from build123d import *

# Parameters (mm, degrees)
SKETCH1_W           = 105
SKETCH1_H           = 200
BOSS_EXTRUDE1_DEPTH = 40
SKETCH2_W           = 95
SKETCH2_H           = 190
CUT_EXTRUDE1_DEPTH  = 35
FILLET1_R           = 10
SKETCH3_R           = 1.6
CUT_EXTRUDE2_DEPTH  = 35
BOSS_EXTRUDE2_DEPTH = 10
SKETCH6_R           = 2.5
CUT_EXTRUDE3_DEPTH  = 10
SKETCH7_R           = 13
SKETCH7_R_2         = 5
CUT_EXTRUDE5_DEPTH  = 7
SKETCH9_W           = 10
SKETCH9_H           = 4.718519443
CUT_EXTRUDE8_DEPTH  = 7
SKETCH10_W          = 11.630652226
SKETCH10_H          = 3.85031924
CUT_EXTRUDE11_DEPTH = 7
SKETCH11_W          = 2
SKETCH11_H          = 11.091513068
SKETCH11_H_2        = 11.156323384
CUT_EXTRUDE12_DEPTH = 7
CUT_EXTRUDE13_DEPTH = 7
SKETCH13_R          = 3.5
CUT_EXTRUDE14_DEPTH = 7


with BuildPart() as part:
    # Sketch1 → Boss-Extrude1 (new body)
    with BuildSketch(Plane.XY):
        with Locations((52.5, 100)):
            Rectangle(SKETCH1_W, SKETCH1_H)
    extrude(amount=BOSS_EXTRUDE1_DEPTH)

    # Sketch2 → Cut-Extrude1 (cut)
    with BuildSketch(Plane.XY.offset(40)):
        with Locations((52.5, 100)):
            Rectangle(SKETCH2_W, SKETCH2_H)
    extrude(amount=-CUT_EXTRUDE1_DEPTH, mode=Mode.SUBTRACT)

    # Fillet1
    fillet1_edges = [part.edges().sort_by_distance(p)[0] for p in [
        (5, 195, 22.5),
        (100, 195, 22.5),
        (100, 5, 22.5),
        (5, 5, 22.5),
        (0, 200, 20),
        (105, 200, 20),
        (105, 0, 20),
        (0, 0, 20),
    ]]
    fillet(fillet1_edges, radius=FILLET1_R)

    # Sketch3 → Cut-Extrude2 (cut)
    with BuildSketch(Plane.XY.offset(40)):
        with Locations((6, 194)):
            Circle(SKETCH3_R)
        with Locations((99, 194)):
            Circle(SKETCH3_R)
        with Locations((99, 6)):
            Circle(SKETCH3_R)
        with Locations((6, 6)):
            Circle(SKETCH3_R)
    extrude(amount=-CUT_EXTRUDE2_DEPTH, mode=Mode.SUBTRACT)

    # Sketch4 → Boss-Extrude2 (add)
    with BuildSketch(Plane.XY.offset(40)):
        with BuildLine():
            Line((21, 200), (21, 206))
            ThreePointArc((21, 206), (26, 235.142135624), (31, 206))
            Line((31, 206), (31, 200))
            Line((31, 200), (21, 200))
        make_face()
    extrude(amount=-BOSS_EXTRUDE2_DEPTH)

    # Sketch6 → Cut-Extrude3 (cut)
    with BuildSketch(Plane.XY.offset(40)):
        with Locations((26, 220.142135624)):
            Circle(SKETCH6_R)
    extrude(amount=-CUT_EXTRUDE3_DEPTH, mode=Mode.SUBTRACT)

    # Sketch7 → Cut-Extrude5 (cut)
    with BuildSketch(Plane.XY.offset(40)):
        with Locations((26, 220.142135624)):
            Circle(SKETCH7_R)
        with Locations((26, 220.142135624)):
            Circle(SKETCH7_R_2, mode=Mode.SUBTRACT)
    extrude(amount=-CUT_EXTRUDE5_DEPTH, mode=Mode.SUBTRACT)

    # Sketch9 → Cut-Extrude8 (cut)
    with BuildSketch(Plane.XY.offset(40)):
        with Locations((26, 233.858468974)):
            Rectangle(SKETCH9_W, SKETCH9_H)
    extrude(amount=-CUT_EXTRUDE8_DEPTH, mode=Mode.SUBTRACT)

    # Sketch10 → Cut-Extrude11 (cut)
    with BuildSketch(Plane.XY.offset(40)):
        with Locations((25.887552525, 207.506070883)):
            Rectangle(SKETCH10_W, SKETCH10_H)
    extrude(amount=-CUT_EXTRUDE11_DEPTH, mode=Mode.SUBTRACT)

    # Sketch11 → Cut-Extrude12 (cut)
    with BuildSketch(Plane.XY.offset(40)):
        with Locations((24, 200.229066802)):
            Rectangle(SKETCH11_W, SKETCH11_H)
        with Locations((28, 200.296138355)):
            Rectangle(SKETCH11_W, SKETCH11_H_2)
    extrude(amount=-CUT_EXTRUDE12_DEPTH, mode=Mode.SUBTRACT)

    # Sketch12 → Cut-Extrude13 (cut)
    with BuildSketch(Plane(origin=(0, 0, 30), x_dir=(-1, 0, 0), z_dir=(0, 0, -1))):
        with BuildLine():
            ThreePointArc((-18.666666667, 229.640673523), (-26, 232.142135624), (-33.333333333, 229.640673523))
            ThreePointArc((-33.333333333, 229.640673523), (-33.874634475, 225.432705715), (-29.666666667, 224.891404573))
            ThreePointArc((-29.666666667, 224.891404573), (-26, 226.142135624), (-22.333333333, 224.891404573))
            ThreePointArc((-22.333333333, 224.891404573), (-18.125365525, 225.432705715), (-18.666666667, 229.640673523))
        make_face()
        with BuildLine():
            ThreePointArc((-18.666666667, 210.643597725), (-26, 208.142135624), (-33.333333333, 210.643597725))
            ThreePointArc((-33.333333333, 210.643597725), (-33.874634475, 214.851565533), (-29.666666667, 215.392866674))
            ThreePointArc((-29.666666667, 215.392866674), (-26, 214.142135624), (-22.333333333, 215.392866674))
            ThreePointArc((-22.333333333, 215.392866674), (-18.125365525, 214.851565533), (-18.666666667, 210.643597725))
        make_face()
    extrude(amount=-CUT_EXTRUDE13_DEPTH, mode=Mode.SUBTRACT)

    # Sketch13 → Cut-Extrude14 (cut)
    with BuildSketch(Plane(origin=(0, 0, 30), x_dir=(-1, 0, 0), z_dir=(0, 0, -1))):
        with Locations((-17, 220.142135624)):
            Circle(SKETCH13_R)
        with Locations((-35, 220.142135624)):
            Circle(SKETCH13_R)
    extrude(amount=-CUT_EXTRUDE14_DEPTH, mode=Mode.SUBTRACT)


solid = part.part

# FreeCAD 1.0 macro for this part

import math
import FreeCAD as App
import Part
import Sketcher


def edges_at(feature, points):
    """Names of the edges that pass closest to the given points."""
    edges = feature.Shape.Edges
    near = lambda p: min(range(len(edges)), key=lambda i: edges[i].distToShape(Part.Vertex(*p))[0])
    return sorted({f"Edge{near(p) + 1}" for p in points})

doc = App.newDocument("Part")
params = doc.addObject("Spreadsheet::Sheet", "Params")
for row, (alias, value) in enumerate([
    ("sketch1_width", "105 mm"),
    ("sketch1_height", "200 mm"),
    ("pad1_length", "40 mm"),
    ("sketch2_width", "95 mm"),
    ("sketch2_height", "190 mm"),
    ("pocket1_length", "35 mm"),
    ("fillet_radius", "10 mm"),
    ("sketch3_diameter", "3.2 mm"),
    ("pocket2_length", "35 mm"),
    ("sketch4_radius", "15 mm"),
    ("sketch4_width", "10 mm"),
    ("sketch4_height", "6 mm"),
    ("pad2_length", "10 mm"),
    ("sketch5_diameter", "5 mm"),
    ("pocket3_length", "10 mm"),
    ("sketch6_diameter", "26 mm"),
    ("sketch6_diameter2", "10 mm"),
    ("pocket4_length", "7 mm"),
    ("sketch7_width", "10 mm"),
    ("pocket5_length", "7 mm"),
    ("pocket6_length", "7 mm"),
    ("sketch9_width", "2 mm"),
    ("pocket7_length", "7 mm"),
    ("sketch10_radius", "12 mm"),
    ("sketch10_radius2", "3 mm"),
    ("pocket8_length", "7 mm"),
    ("sketch11_diameter", "7 mm"),
    ("pocket9_length", "7 mm"),
], start=1):
    params.set(f"A{row}", alias)
    params.set(f"B{row}", "=" + value)
    params.setAlias(f"B{row}", alias)

body = doc.addObject("PartDesign::Body", "Body")

sketch1 = body.newObject("Sketcher::SketchObject", "Sketch")
sketch1.AttachmentSupport = (doc.getObject("XY_Plane"), [""])
sketch1.MapMode = "FlatFace"
sketch1.addGeometry(Part.LineSegment(App.Vector(0, 200, 0), App.Vector(0, 0, 0)), False)
sketch1.addGeometry(Part.LineSegment(App.Vector(0, 0, 0), App.Vector(105, 0, 0)), False)
sketch1.addGeometry(Part.LineSegment(App.Vector(105, 0, 0), App.Vector(105, 200, 0)), False)
sketch1.addGeometry(Part.LineSegment(App.Vector(105, 200, 0), App.Vector(0, 200, 0)), False)
sketch1.addConstraint(Sketcher.Constraint("Coincident", 0, 2, 1, 1))
sketch1.addConstraint(Sketcher.Constraint("Coincident", 1, 2, 2, 1))
sketch1.addConstraint(Sketcher.Constraint("Coincident", 2, 2, 3, 1))
sketch1.addConstraint(Sketcher.Constraint("Coincident", 3, 2, 0, 1))
sketch1.addConstraint(Sketcher.Constraint("Vertical", 0))
sketch1.addConstraint(Sketcher.Constraint("Horizontal", 1))
sketch1.addConstraint(Sketcher.Constraint("Vertical", 2))
sketch1.addConstraint(Sketcher.Constraint("Horizontal", 3))
sketch1.addConstraint(Sketcher.Constraint("Coincident", 0, 2, -1, 1))
sketch1.addConstraint(Sketcher.Constraint("DistanceX", 1, 1, 1, 2, 105.0))
sketch1.addConstraint(Sketcher.Constraint("DistanceY", 0, 2, 0, 1, 200.0))
sketch1.setExpression("Constraints[9]", "Params.sketch1_width")
sketch1.setExpression("Constraints[10]", "Params.sketch1_height")
pad1 = body.newObject("PartDesign::Pad", "Pad")
pad1.Profile = sketch1
pad1.setExpression("Length", "Params.pad1_length")

sketch2 = body.newObject("Sketcher::SketchObject", "Sketch001")
sketch2.AttachmentSupport = (doc.getObject("XY_Plane"), [""])
sketch2.MapMode = "FlatFace"
sketch2.AttachmentOffset = App.Placement(App.Vector(0, 0, 40), App.Rotation())
sketch2.addGeometry(Part.LineSegment(App.Vector(5, 195, 0), App.Vector(5, 5, 0)), False)
sketch2.addGeometry(Part.LineSegment(App.Vector(5, 5, 0), App.Vector(100, 5, 0)), False)
sketch2.addGeometry(Part.LineSegment(App.Vector(100, 5, 0), App.Vector(100, 195, 0)), False)
sketch2.addGeometry(Part.LineSegment(App.Vector(100, 195, 0), App.Vector(5, 195, 0)), False)
sketch2.addConstraint(Sketcher.Constraint("Coincident", 0, 2, 1, 1))
sketch2.addConstraint(Sketcher.Constraint("Coincident", 1, 2, 2, 1))
sketch2.addConstraint(Sketcher.Constraint("Coincident", 2, 2, 3, 1))
sketch2.addConstraint(Sketcher.Constraint("Coincident", 3, 2, 0, 1))
sketch2.addConstraint(Sketcher.Constraint("Vertical", 0))
sketch2.addConstraint(Sketcher.Constraint("Horizontal", 1))
sketch2.addConstraint(Sketcher.Constraint("Vertical", 2))
sketch2.addConstraint(Sketcher.Constraint("Horizontal", 3))
sketch2.addConstraint(Sketcher.Constraint("DistanceX", 1, 1, 1, 2, 95.0))
sketch2.addConstraint(Sketcher.Constraint("DistanceY", 0, 2, 0, 1, 190.0))
sketch2.addConstraint(Sketcher.Constraint("DistanceX", -1, 1, 0, 2, 5.0))
sketch2.addConstraint(Sketcher.Constraint("DistanceY", -1, 1, 0, 2, 5.0))
sketch2.setExpression("Constraints[8]", "Params.sketch2_width")
sketch2.setExpression("Constraints[9]", "Params.sketch2_height")
pocket1 = body.newObject("PartDesign::Pocket", "Pocket")
pocket1.Profile = sketch2
pocket1.setExpression("Length", "Params.pocket1_length")
doc.recompute()

fillet = body.newObject("PartDesign::Fillet", "Fillet")
fillet.Base = (pocket1, edges_at(pocket1, [
    (5, 195, 22.5),
    (100, 195, 22.5),
    (100, 5, 22.5),
    (5, 5, 22.5),
    (0, 200, 20),
    (105, 200, 20),
    (105, 0, 20),
    (0, 0, 20),
]))
fillet.setExpression("Radius", "Params.fillet_radius")

sketch3 = body.newObject("Sketcher::SketchObject", "Sketch002")
sketch3.AttachmentSupport = (doc.getObject("XY_Plane"), [""])
sketch3.MapMode = "FlatFace"
sketch3.AttachmentOffset = App.Placement(App.Vector(0, 0, 40), App.Rotation())
sketch3.addGeometry(Part.Circle(App.Vector(6, 194, 0), App.Vector(0, 0, 1), 1.6), False)
sketch3.addGeometry(Part.Circle(App.Vector(99, 194, 0), App.Vector(0, 0, 1), 1.6), False)
sketch3.addGeometry(Part.Circle(App.Vector(99, 6, 0), App.Vector(0, 0, 1), 1.6), False)
sketch3.addGeometry(Part.Circle(App.Vector(6, 6, 0), App.Vector(0, 0, 1), 1.6), False)
sketch3.addConstraint(Sketcher.Constraint("Equal", 0, 1))
sketch3.addConstraint(Sketcher.Constraint("Equal", 1, 2))
sketch3.addConstraint(Sketcher.Constraint("Equal", 2, 3))
sketch3.addConstraint(Sketcher.Constraint("Horizontal", 0, 3, 1, 3))
sketch3.addConstraint(Sketcher.Constraint("Horizontal", 2, 3, 3, 3))
sketch3.addConstraint(Sketcher.Constraint("Vertical", 1, 3, 2, 3))
sketch3.addConstraint(Sketcher.Constraint("Vertical", 0, 3, 3, 3))
sketch3.addConstraint(Sketcher.Constraint("Diameter", 0, 3.2))
sketch3.addConstraint(Sketcher.Constraint("DistanceX", -1, 1, 0, 3, 6.0))
sketch3.addConstraint(Sketcher.Constraint("DistanceY", -1, 1, 0, 3, 194.0))
sketch3.addConstraint(Sketcher.Constraint("DistanceX", -1, 1, 1, 3, 99.0))
sketch3.addConstraint(Sketcher.Constraint("DistanceY", -1, 1, 2, 3, 6.0))
sketch3.setExpression("Constraints[7]", "Params.sketch3_diameter")
pocket2 = body.newObject("PartDesign::Pocket", "Pocket001")
pocket2.Profile = sketch3
pocket2.setExpression("Length", "Params.pocket2_length")

sketch4 = body.newObject("Sketcher::SketchObject", "Sketch003")
sketch4.AttachmentSupport = (doc.getObject("XY_Plane"), [""])
sketch4.MapMode = "FlatFace"
sketch4.AttachmentOffset = App.Placement(App.Vector(0, 0, 40), App.Rotation())
sketch4.addGeometry(Part.LineSegment(App.Vector(21, 206, 0), App.Vector(21, 200, 0)), False)
sketch4.addGeometry(Part.LineSegment(App.Vector(21, 200, 0), App.Vector(31, 200, 0)), False)
sketch4.addGeometry(Part.LineSegment(App.Vector(31, 200, 0), App.Vector(31, 206, 0)), False)
sketch4.addGeometry(Part.ArcOfCircle(Part.Circle(App.Vector(26, 220, 0), App.Vector(0, 0, 1), 15), math.radians(-71), math.radians(251)), False)
sketch4.addConstraint(Sketcher.Constraint("Coincident", 0, 2, 1, 1))
sketch4.addConstraint(Sketcher.Constraint("Coincident", 1, 2, 2, 1))
sketch4.addConstraint(Sketcher.Constraint("Coincident", 2, 2, 3, 1))
sketch4.addConstraint(Sketcher.Constraint("Coincident", 3, 2, 0, 1))
sketch4.addConstraint(Sketcher.Constraint("Vertical", 0))
sketch4.addConstraint(Sketcher.Constraint("Horizontal", 1))
sketch4.addConstraint(Sketcher.Constraint("Vertical", 2))
sketch4.addConstraint(Sketcher.Constraint("Horizontal", 2, 2, 3, 2))
sketch4.addConstraint(Sketcher.Constraint("Radius", 3, 15.0))
sketch4.addConstraint(Sketcher.Constraint("DistanceX", 1, 1, 1, 2, 10.0))
sketch4.addConstraint(Sketcher.Constraint("DistanceY", 0, 2, 0, 1, 6.0))
sketch4.addConstraint(Sketcher.Constraint("DistanceX", -1, 1, 3, 3, 26.0))
sketch4.addConstraint(Sketcher.Constraint("DistanceY", -1, 1, 0, 2, 200.0))
sketch4.setExpression("Constraints[8]", "Params.sketch4_radius")
sketch4.setExpression("Constraints[9]", "Params.sketch4_width")
sketch4.setExpression("Constraints[10]", "Params.sketch4_height")
pad2 = body.newObject("PartDesign::Pad", "Pad001")
pad2.Profile = sketch4
pad2.setExpression("Length", "Params.pad2_length")
pad2.Reversed = True

sketch5 = body.newObject("Sketcher::SketchObject", "Sketch004")
sketch5.AttachmentSupport = (doc.getObject("XY_Plane"), [""])
sketch5.MapMode = "FlatFace"
sketch5.AttachmentOffset = App.Placement(App.Vector(0, 0, 40), App.Rotation())
sketch5.addGeometry(Part.Circle(App.Vector(26, 220.1, 0), App.Vector(0, 0, 1), 2.5), False)
sketch5.addConstraint(Sketcher.Constraint("Diameter", 0, 5.0))
sketch5.addConstraint(Sketcher.Constraint("DistanceX", -1, 1, 0, 3, 26.0))
sketch5.addConstraint(Sketcher.Constraint("DistanceY", -1, 1, 0, 3, 220.142136))
sketch5.setExpression("Constraints[0]", "Params.sketch5_diameter")
pocket3 = body.newObject("PartDesign::Pocket", "Pocket002")
pocket3.Profile = sketch5
pocket3.setExpression("Length", "Params.pocket3_length")

sketch6 = body.newObject("Sketcher::SketchObject", "Sketch005")
sketch6.AttachmentSupport = (doc.getObject("XY_Plane"), [""])
sketch6.MapMode = "FlatFace"
sketch6.AttachmentOffset = App.Placement(App.Vector(0, 0, 40), App.Rotation())
sketch6.addGeometry(Part.Circle(App.Vector(26, 220, 0), App.Vector(0, 0, 1), 13), False)
sketch6.addGeometry(Part.Circle(App.Vector(26, 220, 0), App.Vector(0, 0, 1), 5), False)
sketch6.addConstraint(Sketcher.Constraint("Coincident", 1, 3, 0, 3))
sketch6.addConstraint(Sketcher.Constraint("Diameter", 0, 26.0))
sketch6.addConstraint(Sketcher.Constraint("Diameter", 1, 10.0))
sketch6.addConstraint(Sketcher.Constraint("DistanceX", -1, 1, 0, 3, 26.0))
sketch6.addConstraint(Sketcher.Constraint("DistanceY", -1, 1, 0, 3, 220.142136))
sketch6.setExpression("Constraints[1]", "Params.sketch6_diameter")
sketch6.setExpression("Constraints[2]", "Params.sketch6_diameter2")
pocket4 = body.newObject("PartDesign::Pocket", "Pocket003")
pocket4.Profile = sketch6
pocket4.setExpression("Length", "Params.pocket4_length")

sketch7 = body.newObject("Sketcher::SketchObject", "Sketch006")
sketch7.AttachmentSupport = (doc.getObject("XY_Plane"), [""])
sketch7.MapMode = "FlatFace"
sketch7.AttachmentOffset = App.Placement(App.Vector(0, 0, 40), App.Rotation())
sketch7.addGeometry(Part.LineSegment(App.Vector(21, 236.2, 0), App.Vector(21, 231.5, 0)), False)
sketch7.addGeometry(Part.LineSegment(App.Vector(21, 231.5, 0), App.Vector(31, 231.5, 0)), False)
sketch7.addGeometry(Part.LineSegment(App.Vector(31, 231.5, 0), App.Vector(31, 236.2, 0)), False)
sketch7.addGeometry(Part.LineSegment(App.Vector(31, 236.2, 0), App.Vector(21, 236.2, 0)), False)
sketch7.addConstraint(Sketcher.Constraint("Coincident", 0, 2, 1, 1))
sketch7.addConstraint(Sketcher.Constraint("Coincident", 1, 2, 2, 1))
sketch7.addConstraint(Sketcher.Constraint("Coincident", 2, 2, 3, 1))
sketch7.addConstraint(Sketcher.Constraint("Coincident", 3, 2, 0, 1))
sketch7.addConstraint(Sketcher.Constraint("Vertical", 0))
sketch7.addConstraint(Sketcher.Constraint("Horizontal", 1))
sketch7.addConstraint(Sketcher.Constraint("Vertical", 2))
sketch7.addConstraint(Sketcher.Constraint("Horizontal", 3))
sketch7.addConstraint(Sketcher.Constraint("DistanceX", 1, 1, 1, 2, 10.0))
sketch7.addConstraint(Sketcher.Constraint("DistanceX", -1, 1, 0, 2, 21.0))
sketch7.addConstraint(Sketcher.Constraint("DistanceY", 0, 2, 0, 1, 4.718519))
sketch7.addConstraint(Sketcher.Constraint("DistanceY", -1, 1, 0, 2, 231.499209))
sketch7.setExpression("Constraints[8]", "Params.sketch7_width")
pocket5 = body.newObject("PartDesign::Pocket", "Pocket004")
pocket5.Profile = sketch7
pocket5.setExpression("Length", "Params.pocket5_length")

sketch8 = body.newObject("Sketcher::SketchObject", "Sketch007")
sketch8.AttachmentSupport = (doc.getObject("XY_Plane"), [""])
sketch8.MapMode = "FlatFace"
sketch8.AttachmentOffset = App.Placement(App.Vector(0, 0, 40), App.Rotation())
sketch8.addGeometry(Part.LineSegment(App.Vector(20.1, 209.4, 0), App.Vector(20.1, 205.6, 0)), False)
sketch8.addGeometry(Part.LineSegment(App.Vector(20.1, 205.6, 0), App.Vector(31.7, 205.6, 0)), False)
sketch8.addGeometry(Part.LineSegment(App.Vector(31.7, 205.6, 0), App.Vector(31.7, 209.4, 0)), False)
sketch8.addGeometry(Part.LineSegment(App.Vector(31.7, 209.4, 0), App.Vector(20.1, 209.4, 0)), False)
sketch8.addConstraint(Sketcher.Constraint("Coincident", 0, 2, 1, 1))
sketch8.addConstraint(Sketcher.Constraint("Coincident", 1, 2, 2, 1))
sketch8.addConstraint(Sketcher.Constraint("Coincident", 2, 2, 3, 1))
sketch8.addConstraint(Sketcher.Constraint("Coincident", 3, 2, 0, 1))
sketch8.addConstraint(Sketcher.Constraint("Vertical", 0))
sketch8.addConstraint(Sketcher.Constraint("Horizontal", 1))
sketch8.addConstraint(Sketcher.Constraint("Vertical", 2))
sketch8.addConstraint(Sketcher.Constraint("Horizontal", 3))
sketch8.addConstraint(Sketcher.Constraint("DistanceY", 0, 2, 0, 1, 3.850319))
sketch8.addConstraint(Sketcher.Constraint("DistanceX", 1, 1, 1, 2, 11.630652))
sketch8.addConstraint(Sketcher.Constraint("DistanceY", -1, 1, 0, 2, 205.580911))
sketch8.addConstraint(Sketcher.Constraint("DistanceX", -1, 1, 1, 2, 31.702879))
pocket6 = body.newObject("PartDesign::Pocket", "Pocket005")
pocket6.Profile = sketch8
pocket6.setExpression("Length", "Params.pocket6_length")

sketch9 = body.newObject("Sketcher::SketchObject", "Sketch008")
sketch9.AttachmentSupport = (doc.getObject("XY_Plane"), [""])
sketch9.MapMode = "FlatFace"
sketch9.AttachmentOffset = App.Placement(App.Vector(0, 0, 40), App.Rotation())
sketch9.addGeometry(Part.LineSegment(App.Vector(23, 205.8, 0), App.Vector(23, 194.7, 0)), False)
sketch9.addGeometry(Part.LineSegment(App.Vector(23, 194.7, 0), App.Vector(25, 194.7, 0)), False)
sketch9.addGeometry(Part.LineSegment(App.Vector(25, 194.7, 0), App.Vector(25, 205.8, 0)), False)
sketch9.addGeometry(Part.LineSegment(App.Vector(25, 205.8, 0), App.Vector(23, 205.8, 0)), False)
sketch9.addGeometry(Part.LineSegment(App.Vector(27, 205.9, 0), App.Vector(27, 194.7, 0)), False)
sketch9.addGeometry(Part.LineSegment(App.Vector(27, 194.7, 0), App.Vector(29, 194.7, 0)), False)
sketch9.addGeometry(Part.LineSegment(App.Vector(29, 194.7, 0), App.Vector(29, 205.9, 0)), False)
sketch9.addGeometry(Part.LineSegment(App.Vector(29, 205.9, 0), App.Vector(27, 205.9, 0)), False)
sketch9.addConstraint(Sketcher.Constraint("Coincident", 0, 2, 1, 1))
sketch9.addConstraint(Sketcher.Constraint("Coincident", 1, 2, 2, 1))
sketch9.addConstraint(Sketcher.Constraint("Coincident", 2, 2, 3, 1))
sketch9.addConstraint(Sketcher.Constraint("Coincident", 3, 2, 0, 1))
sketch9.addConstraint(Sketcher.Constraint("Coincident", 4, 2, 5, 1))
sketch9.addConstraint(Sketcher.Constraint("Coincident", 5, 2, 6, 1))
sketch9.addConstraint(Sketcher.Constraint("Coincident", 6, 2, 7, 1))
sketch9.addConstraint(Sketcher.Constraint("Coincident", 7, 2, 4, 1))
sketch9.addConstraint(Sketcher.Constraint("Vertical", 0))
sketch9.addConstraint(Sketcher.Constraint("Horizontal", 1))
sketch9.addConstraint(Sketcher.Constraint("Vertical", 2))
sketch9.addConstraint(Sketcher.Constraint("Horizontal", 3))
sketch9.addConstraint(Sketcher.Constraint("Vertical", 4))
sketch9.addConstraint(Sketcher.Constraint("Horizontal", 5))
sketch9.addConstraint(Sketcher.Constraint("Vertical", 6))
sketch9.addConstraint(Sketcher.Constraint("Horizontal", 7))
sketch9.addConstraint(Sketcher.Constraint("Equal", 3, 5))
sketch9.addConstraint(Sketcher.Constraint("DistanceX", 1, 1, 1, 2, 2.0))
sketch9.addConstraint(Sketcher.Constraint("DistanceX", -1, 1, 0, 2, 23.0))
sketch9.addConstraint(Sketcher.Constraint("DistanceX", -1, 1, 4, 2, 27.0))
sketch9.addConstraint(Sketcher.Constraint("DistanceY", -1, 1, 6, 2, 205.8743))
sketch9.addConstraint(Sketcher.Constraint("DistanceY", 0, 2, 0, 1, 11.091513))
sketch9.addConstraint(Sketcher.Constraint("DistanceY", 4, 2, 4, 1, 11.156323))
sketch9.addConstraint(Sketcher.Constraint("DistanceY", -1, 1, 0, 2, 194.68331))
sketch9.setExpression("Constraints[17]", "Params.sketch9_width")
pocket7 = body.newObject("PartDesign::Pocket", "Pocket006")
pocket7.Profile = sketch9
pocket7.setExpression("Length", "Params.pocket7_length")

sketch10 = body.newObject("Sketcher::SketchObject", "Sketch009")
sketch10.AttachmentSupport = (doc.getObject("XY_Plane"), [""])
sketch10.MapMode = "FlatFace"
sketch10.AttachmentOffset = App.Placement(App.Vector(0, 0, 30), App.Rotation())
sketch10.addGeometry(Part.ArcOfCircle(Part.Circle(App.Vector(26, 220.1, 0), App.Vector(0, 0, 1), 12), math.radians(52), math.radians(128)), False)
sketch10.addGeometry(Part.ArcOfCircle(Part.Circle(App.Vector(31.5, 227.3, 0), App.Vector(0, 0, 1), 3), math.radians(-128), math.radians(52)), False)
sketch10.addGeometry(Part.ArcOfCircle(Part.Circle(App.Vector(26, 220.1, 0), App.Vector(0, 0, 1), 6), math.radians(52), math.radians(128)), False)
sketch10.addGeometry(Part.ArcOfCircle(Part.Circle(App.Vector(20.5, 227.3, 0), App.Vector(0, 0, 1), 3), math.radians(128), math.radians(308)), False)
sketch10.addGeometry(Part.ArcOfCircle(Part.Circle(App.Vector(26, 220.1, 0), App.Vector(0, 0, 1), 12), math.radians(-128), math.radians(-52)), False)
sketch10.addGeometry(Part.ArcOfCircle(Part.Circle(App.Vector(20.5, 213, 0), App.Vector(0, 0, 1), 3), math.radians(52), math.radians(232)), False)
sketch10.addGeometry(Part.ArcOfCircle(Part.Circle(App.Vector(26, 220.1, 0), App.Vector(0, 0, 1), 6), math.radians(-128), math.radians(-52)), False)
sketch10.addGeometry(Part.ArcOfCircle(Part.Circle(App.Vector(31.5, 213, 0), App.Vector(0, 0, 1), 3), math.radians(-52), math.radians(128)), False)
sketch10.addConstraint(Sketcher.Constraint("Tangent", 0, 1, 1, 2))
sketch10.addConstraint(Sketcher.Constraint("Tangent", 1, 1, 2, 1))
sketch10.addConstraint(Sketcher.Constraint("Tangent", 2, 2, 3, 2))
sketch10.addConstraint(Sketcher.Constraint("Tangent", 3, 1, 0, 2))
sketch10.addConstraint(Sketcher.Constraint("Tangent", 4, 1, 5, 2))
sketch10.addConstraint(Sketcher.Constraint("Tangent", 5, 1, 6, 1))
sketch10.addConstraint(Sketcher.Constraint("Tangent", 6, 2, 7, 2))
sketch10.addConstraint(Sketcher.Constraint("Tangent", 7, 1, 4, 2))
sketch10.addConstraint(Sketcher.Constraint("Coincident", 2, 3, 0, 3))
sketch10.addConstraint(Sketcher.Constraint("Coincident", 4, 3, 0, 3))
sketch10.addConstraint(Sketcher.Constraint("Coincident", 6, 3, 0, 3))
sketch10.addConstraint(Sketcher.Constraint("Equal", 0, 4))
sketch10.addConstraint(Sketcher.Constraint("Equal", 3, 5))
sketch10.addConstraint(Sketcher.Constraint("Horizontal", 1, 3, 3, 3))
sketch10.addConstraint(Sketcher.Constraint("Horizontal", 5, 3, 7, 3))
sketch10.addConstraint(Sketcher.Constraint("Vertical", 3, 3, 5, 3))
sketch10.addConstraint(Sketcher.Constraint("Radius", 0, 12.0))
sketch10.addConstraint(Sketcher.Constraint("Radius", 1, 3.0))
sketch10.addConstraint(Sketcher.Constraint("DistanceX", -1, 1, 0, 3, 26.0))
sketch10.addConstraint(Sketcher.Constraint("DistanceX", 3, 3, 1, 3, 11.0))
sketch10.addConstraint(Sketcher.Constraint("DistanceY", -1, 1, 1, 3, 227.266039))
sketch10.setExpression("Constraints[16]", "Params.sketch10_radius")
sketch10.setExpression("Constraints[17]", "Params.sketch10_radius2")
pocket8 = body.newObject("PartDesign::Pocket", "Pocket007")
pocket8.Profile = sketch10
pocket8.setExpression("Length", "Params.pocket8_length")
pocket8.Reversed = True

sketch11 = body.newObject("Sketcher::SketchObject", "Sketch010")
sketch11.AttachmentSupport = (doc.getObject("XY_Plane"), [""])
sketch11.MapMode = "FlatFace"
sketch11.AttachmentOffset = App.Placement(App.Vector(0, 0, 30), App.Rotation())
sketch11.addGeometry(Part.Circle(App.Vector(17, 220.1, 0), App.Vector(0, 0, 1), 3.5), False)
sketch11.addGeometry(Part.Circle(App.Vector(35, 220.1, 0), App.Vector(0, 0, 1), 3.5), False)
sketch11.addConstraint(Sketcher.Constraint("Equal", 0, 1))
sketch11.addConstraint(Sketcher.Constraint("Horizontal", 0, 3, 1, 3))
sketch11.addConstraint(Sketcher.Constraint("Diameter", 0, 7.0))
sketch11.addConstraint(Sketcher.Constraint("DistanceX", -1, 1, 0, 3, 17.0))
sketch11.addConstraint(Sketcher.Constraint("DistanceX", -1, 1, 1, 3, 35.0))
sketch11.addConstraint(Sketcher.Constraint("DistanceY", -1, 1, 0, 3, 220.142136))
sketch11.setExpression("Constraints[2]", "Params.sketch11_diameter")
pocket9 = body.newObject("PartDesign::Pocket", "Pocket008")
pocket9.Profile = sketch11
pocket9.setExpression("Length", "Params.pocket9_length")
pocket9.Reversed = True

doc.recompute()
